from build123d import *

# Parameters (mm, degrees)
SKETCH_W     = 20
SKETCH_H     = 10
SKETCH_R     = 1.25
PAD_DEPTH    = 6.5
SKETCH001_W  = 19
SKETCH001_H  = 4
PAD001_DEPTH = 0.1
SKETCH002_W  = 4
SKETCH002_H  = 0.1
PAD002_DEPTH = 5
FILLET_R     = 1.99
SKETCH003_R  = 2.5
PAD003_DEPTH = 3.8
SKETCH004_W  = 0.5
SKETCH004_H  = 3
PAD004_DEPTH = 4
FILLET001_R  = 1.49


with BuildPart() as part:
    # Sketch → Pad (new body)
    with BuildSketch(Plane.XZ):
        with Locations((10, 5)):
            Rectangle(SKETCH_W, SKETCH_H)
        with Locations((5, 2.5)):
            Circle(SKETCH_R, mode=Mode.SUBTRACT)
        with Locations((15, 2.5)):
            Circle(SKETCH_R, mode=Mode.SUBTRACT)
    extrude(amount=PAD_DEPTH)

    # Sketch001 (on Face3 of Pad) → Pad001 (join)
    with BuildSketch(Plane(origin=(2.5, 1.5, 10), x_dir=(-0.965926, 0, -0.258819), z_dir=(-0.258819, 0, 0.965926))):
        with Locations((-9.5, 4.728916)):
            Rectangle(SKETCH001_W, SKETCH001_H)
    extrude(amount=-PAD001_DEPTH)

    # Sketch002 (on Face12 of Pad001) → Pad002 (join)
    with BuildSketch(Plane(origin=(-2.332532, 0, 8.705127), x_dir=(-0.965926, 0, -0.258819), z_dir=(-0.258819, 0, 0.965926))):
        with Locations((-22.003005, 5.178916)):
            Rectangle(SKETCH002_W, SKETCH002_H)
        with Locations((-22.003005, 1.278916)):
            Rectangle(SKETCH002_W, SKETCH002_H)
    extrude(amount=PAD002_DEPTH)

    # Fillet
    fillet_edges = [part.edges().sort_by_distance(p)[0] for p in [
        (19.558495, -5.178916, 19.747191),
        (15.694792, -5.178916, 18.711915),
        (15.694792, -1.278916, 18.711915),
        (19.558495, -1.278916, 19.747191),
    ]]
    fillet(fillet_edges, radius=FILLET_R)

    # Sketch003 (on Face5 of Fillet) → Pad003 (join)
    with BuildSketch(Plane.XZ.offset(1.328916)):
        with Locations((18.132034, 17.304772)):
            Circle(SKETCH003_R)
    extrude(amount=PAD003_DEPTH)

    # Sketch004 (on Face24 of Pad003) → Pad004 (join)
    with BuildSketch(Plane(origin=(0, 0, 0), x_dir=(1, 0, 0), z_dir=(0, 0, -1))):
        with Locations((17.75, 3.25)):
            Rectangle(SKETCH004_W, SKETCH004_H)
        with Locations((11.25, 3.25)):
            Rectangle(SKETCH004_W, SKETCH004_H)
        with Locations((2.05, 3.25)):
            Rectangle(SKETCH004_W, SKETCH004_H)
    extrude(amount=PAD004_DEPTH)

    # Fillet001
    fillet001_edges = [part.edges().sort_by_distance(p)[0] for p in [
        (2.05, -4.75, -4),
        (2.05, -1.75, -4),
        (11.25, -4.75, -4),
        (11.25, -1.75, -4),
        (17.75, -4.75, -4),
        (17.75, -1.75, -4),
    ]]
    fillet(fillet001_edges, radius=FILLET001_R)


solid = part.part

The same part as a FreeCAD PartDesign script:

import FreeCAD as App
import Part
import Sketcher

V = App.Vector
Q = App.Units.Quantity


def edges_at(feature, points):
    """Names of the edges that pass closest to the given points."""
    edges = feature.Shape.Edges
    near = lambda p: min(range(len(edges)), key=lambda i: edges[i].distToShape(Part.Vertex(*p))[0])
    return sorted({f"Edge{near(p) + 1}" for p in points})


def add_polygon(sketch, points):
    """Adds a closed chain of lines whose ends are joined by coincident constraints."""
    first, n = sketch.GeometryCount, len(points)
    for a, b in zip(points, points[1:] + points[:1]):
        sketch.addGeometry(Part.LineSegment(App.Vector(*a, 0), App.Vector(*b, 0)), False)
    for i in range(n):
        sketch.addConstraint(Sketcher.Constraint("Coincident", first + i, 2, first + (i + 1) % n, 1))

doc = App.newDocument("Part")
body = doc.addObject("PartDesign::Body", "Body")

sketch1 = body.newObject("Sketcher::SketchObject", "Sketch")
sketch1.AttachmentSupport = (doc.getObject("XZ_Plane"), [""])
sketch1.MapMode = "FlatFace"
add_polygon(sketch1, [(0, 10), (0, 0), (20, 0), (20, 10)])
sketch1.addGeometry(Part.Circle(V(5, 2.5, 0), V(0, 0, 1), 1.25), False)
sketch1.addGeometry(Part.Circle(V(15, 2.5, 0), V(0, 0, 1), 1.25), False)
sketch1.addConstraint(Sketcher.Constraint("Vertical", 0))
sketch1.addConstraint(Sketcher.Constraint("Horizontal", 1))
sketch1.addConstraint(Sketcher.Constraint("Vertical", 2))
sketch1.addConstraint(Sketcher.Constraint("Horizontal", 3))
sketch1.addConstraint(Sketcher.Constraint("Coincident", 0, 2, -1, 1))
sketch1.addConstraint(Sketcher.Constraint("Equal", 4, 5))
sketch1.addConstraint(Sketcher.Constraint("Horizontal", 4, 3, 5, 3))
sketch1.addConstraint(Sketcher.Constraint("Diameter", 4, Q("2.5 mm")))
sketch1.addConstraint(Sketcher.Constraint("DistanceX", 1, 1, 1, 2, Q("20 mm")))
sketch1.addConstraint(Sketcher.Constraint("DistanceY", 0, 2, 0, 1, Q("10 mm")))
sketch1.addConstraint(Sketcher.Constraint("DistanceX", -1, 1, 4, 3, Q("5 mm")))
sketch1.addConstraint(Sketcher.Constraint("DistanceX", -1, 1, 5, 3, Q("15 mm")))
sketch1.addConstraint(Sketcher.Constraint("DistanceY", -1, 1, 4, 3, Q("2.5 mm")))
pad1 = body.newObject("PartDesign::Pad", "Pad")
pad1.Profile = sketch1
pad1.Length = 6.5

sketch2 = body.newObject("Sketcher::SketchObject", "Sketch001")
sketch2.Placement = App.Placement(V(2.5, 1.5, 10), App.Rotation(V(-0.965925849, 0, -0.25881896), V(0, -1, 0), V(-0.25881896, 0, 0.965925849), "ZXY"))
add_polygon(sketch2, [(-19, 6.728916), (-19, 2.728916), (0, 2.728916), (0, 6.728916)])
sketch2.addConstraint(Sketcher.Constraint("Vertical", 0))
sketch2.addConstraint(Sketcher.Constraint("Horizontal", 1))
sketch2.addConstraint(Sketcher.Constraint("Vertical", 2))
sketch2.addConstraint(Sketcher.Constraint("Horizontal", 3))
sketch2.addConstraint(Sketcher.Constraint("PointOnObject", 1, 2, -2))
sketch2.addConstraint(Sketcher.Constraint("DistanceX", 1, 1, 1, 2, Q("19 mm")))
sketch2.addConstraint(Sketcher.Constraint("DistanceY", 0, 2, 0, 1, Q("4 mm")))
sketch2.addConstraint(Sketcher.Constraint("DistanceY", -1, 1, 0, 2, Q("2.728916 mm")))
pad2 = body.newObject("PartDesign::Pad", "Pad001")
pad2.Profile = sketch2
pad2.Length = 0.1
pad2.Reversed = True

sketch3 = body.newObject("Sketcher::SketchObject", "Sketch002")
sketch3.Placement = App.Placement(V(-2.332532, 0, 8.705127), App.Rotation(V(-0.965925849, 0, -0.25881896), V(0, -1, 0), V(-0.25881896, 0, 0.965925849), "ZXY"))
add_polygon(sketch3, [(-24.003005, 5.228916), (-24.003005, 5.128916), (-20.003005, 5.128916), (-20.003005, 5.228916)])
add_polygon(sketch3, [(-24.003005, 1.328916), (-24.003005, 1.228916), (-20.003005, 1.228916), (-20.003005, 1.328916)])
sketch3.addConstraint(Sketcher.Constraint("Vertical", 0))
sketch3.addConstraint(Sketcher.Constraint("Horizontal", 1))
sketch3.addConstraint(Sketcher.Constraint("Vertical", 2))
sketch3.addConstraint(Sketcher.Constraint("Horizontal", 3))
sketch3.addConstraint(Sketcher.Constraint("Vertical", 4))
sketch3.addConstraint(Sketcher.Constraint("Horizontal", 5))
sketch3.addConstraint(Sketcher.Constraint("Vertical", 6))
sketch3.addConstraint(Sketcher.Constraint("Horizontal", 7))
sketch3.addConstraint(Sketcher.Constraint("Vertical", 3, 2, 4, 2))
sketch3.addConstraint(Sketcher.Constraint("Vertical", 2, 2, 5, 2))
sketch3.addConstraint(Sketcher.Constraint("Equal", 2, 4))
sketch3.addConstraint(Sketcher.Constraint("DistanceX", 1, 1, 1, 2, Q("4 mm")))
sketch3.addConstraint(Sketcher.Constraint("DistanceY", 0, 2, 0, 1, Q("0.1 mm")))
sketch3.addConstraint(Sketcher.Constraint("DistanceY", 4, 2, 3, 2, Q("4 mm")))
sketch3.addConstraint(Sketcher.Constraint("DistanceX", 0, 2, -1, 1, Q("24.003005 mm")))
sketch3.addConstraint(Sketcher.Constraint("DistanceY", -1, 1, 0, 2, Q("5.128916 mm")))
pad3 = body.newObject("PartDesign::Pad", "Pad002")
pad3.Profile = sketch3
pad3.Length = 5
doc.recompute()

fillet = body.newObject("PartDesign::Fillet", "Fillet")
fillet.Base = (pad3, edges_at(pad3, [
    (19.558, -5.179, 19.747),
    (15.695, -5.179, 18.712),
    (15.695, -1.279, 18.712),
    (19.558, -1.279, 19.747),
]))
fillet.Radius = 1.99

sketch4 = body.newObject("Sketcher::SketchObject", "Sketch003")
sketch4.AttachmentSupport = (doc.getObject("XZ_Plane"), [""])
sketch4.MapMode = "FlatFace"
sketch4.AttachmentOffset = App.Placement(V(0, 0, 1.328916), App.Rotation())
sketch4.addGeometry(Part.Circle(V(18.132034, 17.304772, 0), V(0, 0, 1), 2.5), False)
sketch4.addConstraint(Sketcher.Constraint("Diameter", 0, Q("5 mm")))
sketch4.addConstraint(Sketcher.Constraint("DistanceY", -1, 1, 0, 3, Q("17.304772 mm")))
sketch4.addConstraint(Sketcher.Constraint("DistanceX", -1, 1, 0, 3, Q("18.132034 mm")))
pad4 = body.newObject("PartDesign::Pad", "Pad003")
pad4.Profile = sketch4
pad4.Length = 3.8

sketch5 = body.newObject("Sketcher::SketchObject", "Sketch004")
sketch5.AttachmentSupport = (doc.getObject("XY_Plane"), [""])
sketch5.MapMode = "FlatFace"
add_polygon(sketch5, [(17.5, -4.75), (17.5, -1.75), (18, -1.75), (18, -4.75)])
add_polygon(sketch5, [(11, -4.75), (11, -1.75), (11.5, -1.75), (11.5, -4.75)])
add_polygon(sketch5, [(1.8, -4.75), (1.8, -1.75), (2.3, -1.75), (2.3, -4.75)])
sketch5.addConstraint(Sketcher.Constraint("Vertical", 0))
sketch5.addConstraint(Sketcher.Constraint("Horizontal", 1))
sketch5.addConstraint(Sketcher.Constraint("Vertical", 2))
sketch5.addConstraint(Sketcher.Constraint("Horizontal", 3))
sketch5.addConstraint(Sketcher.Constraint("Vertical", 4))
sketch5.addConstraint(Sketcher.Constraint("Horizontal", 5))
sketch5.addConstraint(Sketcher.Constraint("Vertical", 6))
sketch5.addConstraint(Sketcher.Constraint("Horizontal", 7))
sketch5.addConstraint(Sketcher.Constraint("Vertical", 8))
sketch5.addConstraint(Sketcher.Constraint("Horizontal", 9))
sketch5.addConstraint(Sketcher.Constraint("Vertical", 10))
sketch5.addConstraint(Sketcher.Constraint("Horizontal", 11))
sketch5.addConstraint(Sketcher.Constraint("Horizontal", 1, 2, 4, 2))
sketch5.addConstraint(Sketcher.Constraint("Horizontal", 3, 2, 6, 2))
sketch5.addConstraint(Sketcher.Constraint("Horizontal", 5, 2, 8, 2))
sketch5.addConstraint(Sketcher.Constraint("Horizontal", 7, 2, 10, 2))
sketch5.addConstraint(Sketcher.Constraint("Equal", 3, 5))
sketch5.addConstraint(Sketcher.Constraint("Equal", 7, 9))
sketch5.addConstraint(Sketcher.Constraint("DistanceY", 0, 1, 0, 2, Q("3 mm")))
sketch5.addConstraint(Sketcher.Constraint("DistanceX", 1, 1, 1, 2, Q("0.5 mm")))
sketch5.addConstraint(Sketcher.Constraint("DistanceX", -1, 1, 1, 2, Q("18 mm")))
sketch5.addConstraint(Sketcher.Constraint("DistanceX", -1, 1, 4, 2, Q("11 mm")))
sketch5.addConstraint(Sketcher.Constraint("DistanceX", -1, 1, 8, 2, Q("1.8 mm")))
sketch5.addConstraint(Sketcher.Constraint("DistanceY", 0, 2, -1, 1, Q("1.75 mm")))
pad5 = body.newObject("PartDesign::Pad", "Pad004")
pad5.Profile = sketch5
pad5.Length = 4
pad5.Reversed = True
doc.recompute()

fillet2 = body.newObject("PartDesign::Fillet", "Fillet001")
fillet2.Base = (pad5, edges_at(pad5, [
    (2.05, -4.75, -4),
    (2.05, -1.75, -4),
    (11.25, -4.75, -4),
    (11.25, -1.75, -4),
    (17.75, -4.75, -4),
    (17.75, -1.75, -4),
]))
fillet2.Radius = 1.49

doc.recompute()
